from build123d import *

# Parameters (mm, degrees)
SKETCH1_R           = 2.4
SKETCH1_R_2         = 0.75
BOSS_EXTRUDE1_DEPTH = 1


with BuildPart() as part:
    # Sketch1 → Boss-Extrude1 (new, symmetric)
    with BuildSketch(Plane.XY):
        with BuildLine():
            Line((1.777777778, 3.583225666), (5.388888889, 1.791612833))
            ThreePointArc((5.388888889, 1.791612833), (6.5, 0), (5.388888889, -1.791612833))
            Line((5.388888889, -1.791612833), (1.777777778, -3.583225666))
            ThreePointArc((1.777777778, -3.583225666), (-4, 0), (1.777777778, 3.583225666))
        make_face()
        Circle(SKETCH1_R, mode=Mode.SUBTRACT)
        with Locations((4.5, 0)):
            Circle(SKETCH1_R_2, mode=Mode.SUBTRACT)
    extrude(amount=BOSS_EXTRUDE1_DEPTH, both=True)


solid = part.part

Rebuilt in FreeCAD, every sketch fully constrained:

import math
import FreeCAD as App
import Part
import Sketcher

doc = App.newDocument("Part")
body = doc.addObject("PartDesign::Body", "Body")

# Sketch on XY plane
sketch1 = body.newObject("Sketcher::SketchObject", "Sketch")
sketch1.AttachmentSupport = (doc.getObject("XY_Plane"), [""])
sketch1.MapMode = "FlatFace"
sketch1.addGeometry(Part.LineSegment(App.Vector(5.4, 1.8, 0), App.Vector(1.8, 3.6, 0)), False)
sketch1.addGeometry(Part.ArcOfCircle(Part.Circle(App.Vector(0, 0, 0), App.Vector(0, 0, 1), 4), math.radians(64), math.radians(296)), False)
sketch1.addGeometry(Part.LineSegment(App.Vector(1.8, -3.6, 0), App.Vector(5.4, -1.8, 0)), False)
sketch1.addGeometry(Part.ArcOfCircle(Part.Circle(App.Vector(4.5, 0, 0), App.Vector(0, 0, 1), 2), math.radians(-64), math.radians(64)), False)
sketch1.addGeometry(Part.Circle(App.Vector(4.5, 0, 0), App.Vector(0, 0, 1), 0.8), False)
sketch1.addGeometry(Part.Circle(App.Vector(0, 0, 0), App.Vector(0, 0, 1), 2.4), False)
sketch1.addConstraint(Sketcher.Constraint("Tangent", 0, 2, 1, 1))
sketch1.addConstraint(Sketcher.Constraint("Tangent", 1, 2, 2, 1))
sketch1.addConstraint(Sketcher.Constraint("Tangent", 2, 2, 3, 1))
sketch1.addConstraint(Sketcher.Constraint("Tangent", 3, 2, 0, 1))
sketch1.addConstraint(Sketcher.Constraint("Coincident", 1, 3, -1, 1))
sketch1.addConstraint(Sketcher.Constraint("Coincident", 5, 3, -1, 1))
sketch1.addConstraint(Sketcher.Constraint("Coincident", 4, 3, 3, 3))
sketch1.addConstraint(Sketcher.Constraint("PointOnObject", 3, 3, -1))
sketch1.addConstraint(Sketcher.Constraint("Radius", 1, 4.0))
sketch1.addConstraint(Sketcher.Constraint("Radius", 3, 2.0))
sketch1.addConstraint(Sketcher.Constraint("Diameter", 4, 1.5))
sketch1.addConstraint(Sketcher.Constraint("Diameter", 5, 4.8))
sketch1.addConstraint(Sketcher.Constraint("DistanceX", -1, 1, 3, 3, 4.5))
pad1 = body.newObject("PartDesign::Pad", "Pad")
pad1.Profile = sketch1
pad1.Length = 2
pad1.Midplane = True

doc.recompute()
